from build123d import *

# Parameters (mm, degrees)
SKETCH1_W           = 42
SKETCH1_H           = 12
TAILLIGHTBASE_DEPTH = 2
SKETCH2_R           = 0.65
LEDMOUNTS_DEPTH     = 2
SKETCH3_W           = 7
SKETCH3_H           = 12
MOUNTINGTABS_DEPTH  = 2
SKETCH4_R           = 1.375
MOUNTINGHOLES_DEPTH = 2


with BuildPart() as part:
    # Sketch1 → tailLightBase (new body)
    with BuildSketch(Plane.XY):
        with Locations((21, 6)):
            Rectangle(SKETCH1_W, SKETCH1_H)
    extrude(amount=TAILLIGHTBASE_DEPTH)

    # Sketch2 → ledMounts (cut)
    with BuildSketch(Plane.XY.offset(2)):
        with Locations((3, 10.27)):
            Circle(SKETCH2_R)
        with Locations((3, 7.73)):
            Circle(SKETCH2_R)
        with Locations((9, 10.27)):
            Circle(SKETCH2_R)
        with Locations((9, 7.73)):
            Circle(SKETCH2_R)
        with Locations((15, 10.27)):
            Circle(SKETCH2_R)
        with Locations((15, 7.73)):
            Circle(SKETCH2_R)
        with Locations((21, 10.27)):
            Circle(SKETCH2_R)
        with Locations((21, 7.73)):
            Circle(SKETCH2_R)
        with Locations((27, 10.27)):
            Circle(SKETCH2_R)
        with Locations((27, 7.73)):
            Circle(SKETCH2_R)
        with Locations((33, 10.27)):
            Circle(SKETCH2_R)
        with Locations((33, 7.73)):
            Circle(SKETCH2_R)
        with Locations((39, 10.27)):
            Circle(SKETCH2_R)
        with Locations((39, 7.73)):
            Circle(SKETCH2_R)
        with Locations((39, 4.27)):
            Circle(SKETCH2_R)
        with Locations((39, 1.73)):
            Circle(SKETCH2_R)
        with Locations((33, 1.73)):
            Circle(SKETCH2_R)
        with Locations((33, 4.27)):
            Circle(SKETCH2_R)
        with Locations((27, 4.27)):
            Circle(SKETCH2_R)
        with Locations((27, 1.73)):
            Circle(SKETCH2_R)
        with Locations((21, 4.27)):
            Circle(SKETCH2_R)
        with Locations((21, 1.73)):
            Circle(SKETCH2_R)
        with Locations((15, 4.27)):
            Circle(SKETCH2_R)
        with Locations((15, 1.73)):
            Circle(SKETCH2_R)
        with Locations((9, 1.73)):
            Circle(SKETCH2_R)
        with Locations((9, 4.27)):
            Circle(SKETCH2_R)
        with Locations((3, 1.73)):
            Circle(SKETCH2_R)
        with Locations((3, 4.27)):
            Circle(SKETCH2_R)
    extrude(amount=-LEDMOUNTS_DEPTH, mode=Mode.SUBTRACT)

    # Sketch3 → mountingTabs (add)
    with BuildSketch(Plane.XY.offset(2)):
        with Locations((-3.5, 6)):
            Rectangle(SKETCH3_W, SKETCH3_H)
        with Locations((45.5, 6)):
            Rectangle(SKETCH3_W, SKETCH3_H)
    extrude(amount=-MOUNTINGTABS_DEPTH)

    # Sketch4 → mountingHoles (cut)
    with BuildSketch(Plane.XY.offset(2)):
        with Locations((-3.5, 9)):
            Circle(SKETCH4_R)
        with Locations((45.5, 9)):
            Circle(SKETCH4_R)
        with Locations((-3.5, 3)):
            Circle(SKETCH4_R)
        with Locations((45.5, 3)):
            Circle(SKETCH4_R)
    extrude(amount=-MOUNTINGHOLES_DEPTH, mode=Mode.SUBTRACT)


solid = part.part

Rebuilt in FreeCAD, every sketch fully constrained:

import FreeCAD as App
import Part
import Sketcher

V = App.Vector
Q = App.Units.Quantity

doc = App.newDocument("Part")
params = doc.addObject("Spreadsheet::Sheet", "Params")
for row, (alias, value) in enumerate([
    ("sketch1_width", "42 mm"),
    ("sketch1_height", "12 mm"),
    ("pad1_length", "2 mm"),
    ("sketch2_diameter", "1.3 mm"),
    ("pocket1_length", "2 mm"),
    ("sketch3_width", "7 mm"),
    ("sketch3_height", "12 mm"),
    ("pad2_length", "2 mm"),
    ("sketch4_diameter", "2.75 mm"),
    ("pocket2_length", "2 mm"),
], start=1):
    params.set(f"A{row}", alias)
    params.set(f"B{row}", "=" + value)
    params.setAlias(f"B{row}", alias)

body = doc.addObject("PartDesign::Body", "Body")

# Sketch on XY plane
sketch1 = body.newObject("Sketcher::SketchObject", "Sketch")
sketch1.AttachmentSupport = (doc.getObject("XY_Plane"), [""])
sketch1.MapMode = "FlatFace"
sketch1.addGeometry(Part.LineSegment(V(0, 12, 0), V(0, 0, 0)), False)
sketch1.addGeometry(Part.LineSegment(V(0, 0, 0), V(42, 0, 0)), False)
sketch1.addGeometry(Part.LineSegment(V(42, 0, 0), V(42, 12, 0)), False)
sketch1.addGeometry(Part.LineSegment(V(42, 12, 0), V(0, 12, 0)), False)
sketch1.addConstraint(Sketcher.Constraint("Coincident", 0, 2, 1, 1))
sketch1.addConstraint(Sketcher.Constraint("Coincident", 1, 2, 2, 1))
sketch1.addConstraint(Sketcher.Constraint("Coincident", 2, 2, 3, 1))
sketch1.addConstraint(Sketcher.Constraint("Coincident", 3, 2, 0, 1))
sketch1.addConstraint(Sketcher.Constraint("Vertical", 0))
sketch1.addConstraint(Sketcher.Constraint("Horizontal", 1))
sketch1.addConstraint(Sketcher.Constraint("Vertical", 2))
sketch1.addConstraint(Sketcher.Constraint("Horizontal", 3))
sketch1.addConstraint(Sketcher.Constraint("Coincident", 0, 2, -1, 1))
sketch1.addConstraint(Sketcher.Constraint("DistanceX", 1, 1, 1, 2, Q("42 mm")))
sketch1.addConstraint(Sketcher.Constraint("DistanceY", 0, 2, 0, 1, Q("12 mm")))
sketch1.setExpression("Constraints[9]", "Params.sketch1_width")
sketch1.setExpression("Constraints[10]", "Params.sketch1_height")
pad1 = body.newObject("PartDesign::Pad", "Pad")
pad1.Profile = sketch1
pad1.setExpression("Length", "Params.pad1_length")

# Sketch on XY plane
sketch2 = body.newObject("Sketcher::SketchObject", "Sketch001")
sketch2.AttachmentSupport = (doc.getObject("XY_Plane"), [""])
sketch2.MapMode = "FlatFace"
sketch2.AttachmentOffset = App.Placement(V(0, 0, 2), App.Rotation())
sketch2.addGeometry(Part.Circle(V(3, 10.3, 0), V(0, 0, 1), 0.7), False)
sketch2.addGeometry(Part.Circle(V(3, 7.7, 0), V(0, 0, 1), 0.7), False)
sketch2.addGeometry(Part.Circle(V(9, 10.3, 0), V(0, 0, 1), 0.7), False)
sketch2.addGeometry(Part.Circle(V(9, 7.7, 0), V(0, 0, 1), 0.7), False)
sketch2.addGeometry(Part.Circle(V(15, 10.3, 0), V(0, 0, 1), 0.7), False)
sketch2.addGeometry(Part.Circle(V(15, 7.7, 0), V(0, 0, 1), 0.7), False)
sketch2.addGeometry(Part.Circle(V(21, 10.3, 0), V(0, 0, 1), 0.7), False)
sketch2.addGeometry(Part.Circle(V(21, 7.7, 0), V(0, 0, 1), 0.7), False)
sketch2.addGeometry(Part.Circle(V(27, 10.3, 0), V(0, 0, 1), 0.7), False)
sketch2.addGeometry(Part.Circle(V(27, 7.7, 0), V(0, 0, 1), 0.7), False)
sketch2.addGeometry(Part.Circle(V(33, 10.3, 0), V(0, 0, 1), 0.7), False)
sketch2.addGeometry(Part.Circle(V(33, 7.7, 0), V(0, 0, 1), 0.7), False)
sketch2.addGeometry(Part.Circle(V(39, 10.3, 0), V(0, 0, 1), 0.7), False)
sketch2.addGeometry(Part.Circle(V(39, 7.7, 0), V(0, 0, 1), 0.7), False)
sketch2.addGeometry(Part.Circle(V(39, 4.3, 0), V(0, 0, 1), 0.7), False)
sketch2.addGeometry(Part.Circle(V(39, 1.7, 0), V(0, 0, 1), 0.7), False)
sketch2.addGeometry(Part.Circle(V(33, 1.7, 0), V(0, 0, 1), 0.7), False)
sketch2.addGeometry(Part.Circle(V(33, 4.3, 0), V(0, 0, 1), 0.7), False)
sketch2.addGeometry(Part.Circle(V(27, 4.3, 0), V(0, 0, 1), 0.7), False)
sketch2.addGeometry(Part.Circle(V(27, 1.7, 0), V(0, 0, 1), 0.7), False)
sketch2.addGeometry(Part.Circle(V(21, 4.3, 0), V(0, 0, 1), 0.7), False)
sketch2.addGeometry(Part.Circle(V(21, 1.7, 0), V(0, 0, 1), 0.7), False)
sketch2.addGeometry(Part.Circle(V(15, 4.3, 0), V(0, 0, 1), 0.7), False)
sketch2.addGeometry(Part.Circle(V(15, 1.7, 0), V(0, 0, 1), 0.7), False)
sketch2.addGeometry(Part.Circle(V(9, 1.7, 0), V(0, 0, 1), 0.7), False)
sketch2.addGeometry(Part.Circle(V(9, 4.3, 0), V(0, 0, 1), 0.7), False)
sketch2.addGeometry(Part.Circle(V(3, 1.7, 0), V(0, 0, 1), 0.7), False)
sketch2.addGeometry(Part.Circle(V(3, 4.3, 0), V(0, 0, 1), 0.7), False)
sketch2.addConstraint(Sketcher.Constraint("Equal", 0, 1))
sketch2.addConstraint(Sketcher.Constraint("Equal", 1, 2))
sketch2.addConstraint(Sketcher.Constraint("Equal", 2, 3))
sketch2.addConstraint(Sketcher.Constraint("Equal", 3, 4))
sketch2.addConstraint(Sketcher.Constraint("Equal", 4, 5))
sketch2.addConstraint(Sketcher.Constraint("Equal", 5, 6))
sketch2.addConstraint(Sketcher.Constraint("Equal", 6, 7))
sketch2.addConstraint(Sketcher.Constraint("Equal", 7, 8))
sketch2.addConstraint(Sketcher.Constraint("Equal", 8, 9))
sketch2.addConstraint(Sketcher.Constraint("Equal", 9, 10))
sketch2.addConstraint(Sketcher.Constraint("Equal", 10, 11))
sketch2.addConstraint(Sketcher.Constraint("Equal", 11, 12))
sketch2.addConstraint(Sketcher.Constraint("Equal", 12, 13))
sketch2.addConstraint(Sketcher.Constraint("Equal", 13, 14))
sketch2.addConstraint(Sketcher.Constraint("Equal", 14, 15))
sketch2.addConstraint(Sketcher.Constraint("Equal", 15, 16))
sketch2.addConstraint(Sketcher.Constraint("Equal", 16, 17))
sketch2.addConstraint(Sketcher.Constraint("Equal", 17, 18))
sketch2.addConstraint(Sketcher.Constraint("Equal", 18, 19))
sketch2.addConstraint(Sketcher.Constraint("Equal", 19, 20))
sketch2.addConstraint(Sketcher.Constraint("Equal", 20, 21))
sketch2.addConstraint(Sketcher.Constraint("Equal", 21, 22))
sketch2.addConstraint(Sketcher.Constraint("Equal", 22, 23))
sketch2.addConstraint(Sketcher.Constraint("Equal", 23, 24))
sketch2.addConstraint(Sketcher.Constraint("Equal", 24, 25))
sketch2.addConstraint(Sketcher.Constraint("Equal", 25, 26))
sketch2.addConstraint(Sketcher.Constraint("Equal", 26, 27))
sketch2.addConstraint(Sketcher.Constraint("Horizontal", 0, 3, 2, 3))
sketch2.addConstraint(Sketcher.Constraint("Horizontal", 1, 3, 3, 3))
sketch2.addConstraint(Sketcher.Constraint("Horizontal", 2, 3, 4, 3))
sketch2.addConstraint(Sketcher.Constraint("Horizontal", 3, 3, 5, 3))
sketch2.addConstraint(Sketcher.Constraint("Horizontal", 4, 3, 6, 3))
sketch2.addConstraint(Sketcher.Constraint("Horizontal", 5, 3, 7, 3))
sketch2.addConstraint(Sketcher.Constraint("Horizontal", 6, 3, 8, 3))
sketch2.addConstraint(Sketcher.Constraint("Horizontal", 7, 3, 9, 3))
sketch2.addConstraint(Sketcher.Constraint("Horizontal", 8, 3, 10, 3))
sketch2.addConstraint(Sketcher.Constraint("Horizontal", 9, 3, 11, 3))
sketch2.addConstraint(Sketcher.Constraint("Horizontal", 10, 3, 12, 3))
sketch2.addConstraint(Sketcher.Constraint("Horizontal", 11, 3, 13, 3))
sketch2.addConstraint(Sketcher.Constraint("Horizontal", 15, 3, 16, 3))
sketch2.addConstraint(Sketcher.Constraint("Horizontal", 14, 3, 17, 3))
sketch2.addConstraint(Sketcher.Constraint("Horizontal", 17, 3, 18, 3))
sketch2.addConstraint(Sketcher.Constraint("Horizontal", 16, 3, 19, 3))
sketch2.addConstraint(Sketcher.Constraint("Horizontal", 18, 3, 20, 3))
sketch2.addConstraint(Sketcher.Constraint("Horizontal", 19, 3, 21, 3))
sketch2.addConstraint(Sketcher.Constraint("Horizontal", 20, 3, 22, 3))
sketch2.addConstraint(Sketcher.Constraint("Horizontal", 21, 3, 23, 3))
sketch2.addConstraint(Sketcher.Constraint("Horizontal", 23, 3, 24, 3))
sketch2.addConstraint(Sketcher.Constraint("Horizontal", 22, 3, 25, 3))
sketch2.addConstraint(Sketcher.Constraint("Horizontal", 24, 3, 26, 3))
sketch2.addConstraint(Sketcher.Constraint("Horizontal", 25, 3, 27, 3))
sketch2.addConstraint(Sketcher.Constraint("Vertical", 0, 3, 1, 3))
sketch2.addConstraint(Sketcher.Constraint("Vertical", 2, 3, 3, 3))
sketch2.addConstraint(Sketcher.Constraint("Vertical", 4, 3, 5, 3))
sketch2.addConstraint(Sketcher.Constraint("Vertical", 6, 3, 7, 3))
sketch2.addConstraint(Sketcher.Constraint("Vertical", 8, 3, 9, 3))
sketch2.addConstraint(Sketcher.Constraint("Vertical", 10, 3, 11, 3))
sketch2.addConstraint(Sketcher.Constraint("Vertical", 12, 3, 13, 3))
sketch2.addConstraint(Sketcher.Constraint("Vertical", 13, 3, 14, 3))
sketch2.addConstraint(Sketcher.Constraint("Vertical", 14, 3, 15, 3))
sketch2.addConstraint(Sketcher.Constraint("Vertical", 11, 3, 16, 3))
sketch2.addConstraint(Sketcher.Constraint("Vertical", 16, 3, 17, 3))
sketch2.addConstraint(Sketcher.Constraint("Vertical", 9, 3, 18, 3))
sketch2.addConstraint(Sketcher.Constraint("Vertical", 18, 3, 19, 3))
sketch2.addConstraint(Sketcher.Constraint("Vertical", 7, 3, 20, 3))
sketch2.addConstraint(Sketcher.Constraint("Vertical", 20, 3, 21, 3))
sketch2.addConstraint(Sketcher.Constraint("Vertical", 5, 3, 22, 3))
sketch2.addConstraint(Sketcher.Constraint("Vertical", 22, 3, 23, 3))
sketch2.addConstraint(Sketcher.Constraint("Vertical", 3, 3, 24, 3))
sketch2.addConstraint(Sketcher.Constraint("Vertical", 24, 3, 25, 3))
sketch2.addConstraint(Sketcher.Constraint("Vertical", 1, 3, 26, 3))
sketch2.addConstraint(Sketcher.Constraint("Vertical", 26, 3, 27, 3))
sketch2.addConstraint(Sketcher.Constraint("Diameter", 0, Q("1.3 mm")))
sketch2.addConstraint(Sketcher.Constraint("DistanceX", -1, 1, 0, 3, Q("3 mm")))
sketch2.addConstraint(Sketcher.Constraint("DistanceX", -1, 1, 2, 3, Q("9 mm")))
sketch2.addConstraint(Sketcher.Constraint("DistanceX", -1, 1, 4, 3, Q("15 mm")))
sketch2.addConstraint(Sketcher.Constraint("DistanceX", -1, 1, 6, 3, Q("21 mm")))
sketch2.addConstraint(Sketcher.Constraint("DistanceX", -1, 1, 8, 3, Q("27 mm")))
sketch2.addConstraint(Sketcher.Constraint("DistanceX", -1, 1, 10, 3, Q("33 mm")))
sketch2.addConstraint(Sketcher.Constraint("DistanceX", -1, 1, 12, 3, Q("39 mm")))
sketch2.addConstraint(Sketcher.Constraint("DistanceY", 14, 3, 12, 3, Q("6 mm")))
sketch2.addConstraint(Sketcher.Constraint("DistanceY", 15, 3, 13, 3, Q("6 mm")))
sketch2.addConstraint(Sketcher.Constraint("DistanceY", -1, 1, 0, 3, Q("10.27 mm")))
sketch2.addConstraint(Sketcher.Constraint("DistanceY", -1, 1, 1, 3, Q("7.73 mm")))
sketch2.setExpression("Constraints[72]", "Params.sketch2_diameter")
pocket1 = body.newObject("PartDesign::Pocket", "Pocket")
pocket1.Profile = sketch2
pocket1.setExpression("Length", "Params.pocket1_length")

# Sketch on XY plane
sketch3 = body.newObject("Sketcher::SketchObject", "Sketch002")
sketch3.AttachmentSupport = (doc.getObject("XY_Plane"), [""])
sketch3.MapMode = "FlatFace"
sketch3.AttachmentOffset = App.Placement(V(0, 0, 2), App.Rotation())
sketch3.addGeometry(Part.LineSegment(V(-7, 12, 0), V(-7, 0, 0)), False)
sketch3.addGeometry(Part.LineSegment(V(-7, 0, 0), V(0, 0, 0)), False)
sketch3.addGeometry(Part.LineSegment(V(0, 0, 0), V(0, 12, 0)), False)
sketch3.addGeometry(Part.LineSegment(V(0, 12, 0), V(-7, 12, 0)), False)
sketch3.addGeometry(Part.LineSegment(V(42, 12, 0), V(42, 0, 0)), False)
sketch3.addGeometry(Part.LineSegment(V(42, 0, 0), V(49, 0, 0)), False)
sketch3.addGeometry(Part.LineSegment(V(49, 0, 0), V(49, 12, 0)), False)
sketch3.addGeometry(Part.LineSegment(V(49, 12, 0), V(42, 12, 0)), False)
sketch3.addConstraint(Sketcher.Constraint("Coincident", 0, 2, 1, 1))
sketch3.addConstraint(Sketcher.Constraint("Coincident", 1, 2, 2, 1))
sketch3.addConstraint(Sketcher.Constraint("Coincident", 2, 2, 3, 1))
sketch3.addConstraint(Sketcher.Constraint("Coincident", 3, 2, 0, 1))
sketch3.addConstraint(Sketcher.Constraint("Coincident", 4, 2, 5, 1))
sketch3.addConstraint(Sketcher.Constraint("Coincident", 5, 2, 6, 1))
sketch3.addConstraint(Sketcher.Constraint("Coincident", 6, 2, 7, 1))
sketch3.addConstraint(Sketcher.Constraint("Coincident", 7, 2, 4, 1))
sketch3.addConstraint(Sketcher.Constraint("Vertical", 0))
sketch3.addConstraint(Sketcher.Constraint("Horizontal", 1))
sketch3.addConstraint(Sketcher.Constraint("Vertical", 2))
sketch3.addConstraint(Sketcher.Constraint("Horizontal", 3))
sketch3.addConstraint(Sketcher.Constraint("Vertical", 4))
sketch3.addConstraint(Sketcher.Constraint("Horizontal", 5))
sketch3.addConstraint(Sketcher.Constraint("Vertical", 6))
sketch3.addConstraint(Sketcher.Constraint("Horizontal", 7))
sketch3.addConstraint(Sketcher.Constraint("Coincident", 1, 2, -1, 1))
sketch3.addConstraint(Sketcher.Constraint("PointOnObject", 4, 2, -1))
sketch3.addConstraint(Sketcher.Constraint("Horizontal", 3, 2, 6, 2))
sketch3.addConstraint(Sketcher.Constraint("Equal", 3, 5))
sketch3.addConstraint(Sketcher.Constraint("DistanceX", 1, 1, 1, 2, Q("7 mm")))
sketch3.addConstraint(Sketcher.Constraint("DistanceY", 0, 2, 0, 1, Q("12 mm")))
sketch3.addConstraint(Sketcher.Constraint("DistanceX", -1, 1, 4, 2, Q("42 mm")))
sketch3.setExpression("Constraints[20]", "Params.sketch3_width")
sketch3.setExpression("Constraints[21]", "Params.sketch3_height")
pad2 = body.newObject("PartDesign::Pad", "Pad001")
pad2.Profile = sketch3
pad2.setExpression("Length", "Params.pad2_length")
pad2.Reversed = True

# Sketch on XY plane
sketch4 = body.newObject("Sketcher::SketchObject", "Sketch003")
sketch4.AttachmentSupport = (doc.getObject("XY_Plane"), [""])
sketch4.MapMode = "FlatFace"
sketch4.AttachmentOffset = App.Placement(V(0, 0, 2), App.Rotation())
sketch4.addGeometry(Part.Circle(V(-3.5, 9, 0), V(0, 0, 1), 1.4), False)
sketch4.addGeometry(Part.Circle(V(45.5, 9, 0), V(0, 0, 1), 1.4), False)
sketch4.addGeometry(Part.Circle(V(-3.5, 3, 0), V(0, 0, 1), 1.4), False)
sketch4.addGeometry(Part.Circle(V(45.5, 3, 0), V(0, 0, 1), 1.4), False)
sketch4.addConstraint(Sketcher.Constraint("Equal", 0, 1))
sketch4.addConstraint(Sketcher.Constraint("Equal", 1, 2))
sketch4.addConstraint(Sketcher.Constraint("Equal", 2, 3))
sketch4.addConstraint(Sketcher.Constraint("Horizontal", 0, 3, 1, 3))
sketch4.addConstraint(Sketcher.Constraint("Horizontal", 2, 3, 3, 3))
sketch4.addConstraint(Sketcher.Constraint("Vertical", 0, 3, 2, 3))
sketch4.addConstraint(Sketcher.Constraint("Vertical", 1, 3, 3, 3))
sketch4.addConstraint(Sketcher.Constraint("Diameter", 0, Q("2.75 mm")))
sketch4.addConstraint(Sketcher.Constraint("DistanceY", -1, 1, 0, 3, Q("9 mm")))
sketch4.addConstraint(Sketcher.Constraint("DistanceY", -1, 1, 2, 3, Q("3 mm")))
sketch4.addConstraint(Sketcher.Constraint("DistanceX", 0, 3, 1, 3, Q("49 mm")))
sketch4.addConstraint(Sketcher.Constraint("DistanceX", 0, 3, -1, 1, Q("3.5 mm")))
sketch4.setExpression("Constraints[7]", "Params.sketch4_diameter")
pocket2 = body.newObject("PartDesign::Pocket", "Pocket001")
pocket2.Profile = sketch4
pocket2.setExpression("Length", "Params.pocket2_length")

doc.recompute()
